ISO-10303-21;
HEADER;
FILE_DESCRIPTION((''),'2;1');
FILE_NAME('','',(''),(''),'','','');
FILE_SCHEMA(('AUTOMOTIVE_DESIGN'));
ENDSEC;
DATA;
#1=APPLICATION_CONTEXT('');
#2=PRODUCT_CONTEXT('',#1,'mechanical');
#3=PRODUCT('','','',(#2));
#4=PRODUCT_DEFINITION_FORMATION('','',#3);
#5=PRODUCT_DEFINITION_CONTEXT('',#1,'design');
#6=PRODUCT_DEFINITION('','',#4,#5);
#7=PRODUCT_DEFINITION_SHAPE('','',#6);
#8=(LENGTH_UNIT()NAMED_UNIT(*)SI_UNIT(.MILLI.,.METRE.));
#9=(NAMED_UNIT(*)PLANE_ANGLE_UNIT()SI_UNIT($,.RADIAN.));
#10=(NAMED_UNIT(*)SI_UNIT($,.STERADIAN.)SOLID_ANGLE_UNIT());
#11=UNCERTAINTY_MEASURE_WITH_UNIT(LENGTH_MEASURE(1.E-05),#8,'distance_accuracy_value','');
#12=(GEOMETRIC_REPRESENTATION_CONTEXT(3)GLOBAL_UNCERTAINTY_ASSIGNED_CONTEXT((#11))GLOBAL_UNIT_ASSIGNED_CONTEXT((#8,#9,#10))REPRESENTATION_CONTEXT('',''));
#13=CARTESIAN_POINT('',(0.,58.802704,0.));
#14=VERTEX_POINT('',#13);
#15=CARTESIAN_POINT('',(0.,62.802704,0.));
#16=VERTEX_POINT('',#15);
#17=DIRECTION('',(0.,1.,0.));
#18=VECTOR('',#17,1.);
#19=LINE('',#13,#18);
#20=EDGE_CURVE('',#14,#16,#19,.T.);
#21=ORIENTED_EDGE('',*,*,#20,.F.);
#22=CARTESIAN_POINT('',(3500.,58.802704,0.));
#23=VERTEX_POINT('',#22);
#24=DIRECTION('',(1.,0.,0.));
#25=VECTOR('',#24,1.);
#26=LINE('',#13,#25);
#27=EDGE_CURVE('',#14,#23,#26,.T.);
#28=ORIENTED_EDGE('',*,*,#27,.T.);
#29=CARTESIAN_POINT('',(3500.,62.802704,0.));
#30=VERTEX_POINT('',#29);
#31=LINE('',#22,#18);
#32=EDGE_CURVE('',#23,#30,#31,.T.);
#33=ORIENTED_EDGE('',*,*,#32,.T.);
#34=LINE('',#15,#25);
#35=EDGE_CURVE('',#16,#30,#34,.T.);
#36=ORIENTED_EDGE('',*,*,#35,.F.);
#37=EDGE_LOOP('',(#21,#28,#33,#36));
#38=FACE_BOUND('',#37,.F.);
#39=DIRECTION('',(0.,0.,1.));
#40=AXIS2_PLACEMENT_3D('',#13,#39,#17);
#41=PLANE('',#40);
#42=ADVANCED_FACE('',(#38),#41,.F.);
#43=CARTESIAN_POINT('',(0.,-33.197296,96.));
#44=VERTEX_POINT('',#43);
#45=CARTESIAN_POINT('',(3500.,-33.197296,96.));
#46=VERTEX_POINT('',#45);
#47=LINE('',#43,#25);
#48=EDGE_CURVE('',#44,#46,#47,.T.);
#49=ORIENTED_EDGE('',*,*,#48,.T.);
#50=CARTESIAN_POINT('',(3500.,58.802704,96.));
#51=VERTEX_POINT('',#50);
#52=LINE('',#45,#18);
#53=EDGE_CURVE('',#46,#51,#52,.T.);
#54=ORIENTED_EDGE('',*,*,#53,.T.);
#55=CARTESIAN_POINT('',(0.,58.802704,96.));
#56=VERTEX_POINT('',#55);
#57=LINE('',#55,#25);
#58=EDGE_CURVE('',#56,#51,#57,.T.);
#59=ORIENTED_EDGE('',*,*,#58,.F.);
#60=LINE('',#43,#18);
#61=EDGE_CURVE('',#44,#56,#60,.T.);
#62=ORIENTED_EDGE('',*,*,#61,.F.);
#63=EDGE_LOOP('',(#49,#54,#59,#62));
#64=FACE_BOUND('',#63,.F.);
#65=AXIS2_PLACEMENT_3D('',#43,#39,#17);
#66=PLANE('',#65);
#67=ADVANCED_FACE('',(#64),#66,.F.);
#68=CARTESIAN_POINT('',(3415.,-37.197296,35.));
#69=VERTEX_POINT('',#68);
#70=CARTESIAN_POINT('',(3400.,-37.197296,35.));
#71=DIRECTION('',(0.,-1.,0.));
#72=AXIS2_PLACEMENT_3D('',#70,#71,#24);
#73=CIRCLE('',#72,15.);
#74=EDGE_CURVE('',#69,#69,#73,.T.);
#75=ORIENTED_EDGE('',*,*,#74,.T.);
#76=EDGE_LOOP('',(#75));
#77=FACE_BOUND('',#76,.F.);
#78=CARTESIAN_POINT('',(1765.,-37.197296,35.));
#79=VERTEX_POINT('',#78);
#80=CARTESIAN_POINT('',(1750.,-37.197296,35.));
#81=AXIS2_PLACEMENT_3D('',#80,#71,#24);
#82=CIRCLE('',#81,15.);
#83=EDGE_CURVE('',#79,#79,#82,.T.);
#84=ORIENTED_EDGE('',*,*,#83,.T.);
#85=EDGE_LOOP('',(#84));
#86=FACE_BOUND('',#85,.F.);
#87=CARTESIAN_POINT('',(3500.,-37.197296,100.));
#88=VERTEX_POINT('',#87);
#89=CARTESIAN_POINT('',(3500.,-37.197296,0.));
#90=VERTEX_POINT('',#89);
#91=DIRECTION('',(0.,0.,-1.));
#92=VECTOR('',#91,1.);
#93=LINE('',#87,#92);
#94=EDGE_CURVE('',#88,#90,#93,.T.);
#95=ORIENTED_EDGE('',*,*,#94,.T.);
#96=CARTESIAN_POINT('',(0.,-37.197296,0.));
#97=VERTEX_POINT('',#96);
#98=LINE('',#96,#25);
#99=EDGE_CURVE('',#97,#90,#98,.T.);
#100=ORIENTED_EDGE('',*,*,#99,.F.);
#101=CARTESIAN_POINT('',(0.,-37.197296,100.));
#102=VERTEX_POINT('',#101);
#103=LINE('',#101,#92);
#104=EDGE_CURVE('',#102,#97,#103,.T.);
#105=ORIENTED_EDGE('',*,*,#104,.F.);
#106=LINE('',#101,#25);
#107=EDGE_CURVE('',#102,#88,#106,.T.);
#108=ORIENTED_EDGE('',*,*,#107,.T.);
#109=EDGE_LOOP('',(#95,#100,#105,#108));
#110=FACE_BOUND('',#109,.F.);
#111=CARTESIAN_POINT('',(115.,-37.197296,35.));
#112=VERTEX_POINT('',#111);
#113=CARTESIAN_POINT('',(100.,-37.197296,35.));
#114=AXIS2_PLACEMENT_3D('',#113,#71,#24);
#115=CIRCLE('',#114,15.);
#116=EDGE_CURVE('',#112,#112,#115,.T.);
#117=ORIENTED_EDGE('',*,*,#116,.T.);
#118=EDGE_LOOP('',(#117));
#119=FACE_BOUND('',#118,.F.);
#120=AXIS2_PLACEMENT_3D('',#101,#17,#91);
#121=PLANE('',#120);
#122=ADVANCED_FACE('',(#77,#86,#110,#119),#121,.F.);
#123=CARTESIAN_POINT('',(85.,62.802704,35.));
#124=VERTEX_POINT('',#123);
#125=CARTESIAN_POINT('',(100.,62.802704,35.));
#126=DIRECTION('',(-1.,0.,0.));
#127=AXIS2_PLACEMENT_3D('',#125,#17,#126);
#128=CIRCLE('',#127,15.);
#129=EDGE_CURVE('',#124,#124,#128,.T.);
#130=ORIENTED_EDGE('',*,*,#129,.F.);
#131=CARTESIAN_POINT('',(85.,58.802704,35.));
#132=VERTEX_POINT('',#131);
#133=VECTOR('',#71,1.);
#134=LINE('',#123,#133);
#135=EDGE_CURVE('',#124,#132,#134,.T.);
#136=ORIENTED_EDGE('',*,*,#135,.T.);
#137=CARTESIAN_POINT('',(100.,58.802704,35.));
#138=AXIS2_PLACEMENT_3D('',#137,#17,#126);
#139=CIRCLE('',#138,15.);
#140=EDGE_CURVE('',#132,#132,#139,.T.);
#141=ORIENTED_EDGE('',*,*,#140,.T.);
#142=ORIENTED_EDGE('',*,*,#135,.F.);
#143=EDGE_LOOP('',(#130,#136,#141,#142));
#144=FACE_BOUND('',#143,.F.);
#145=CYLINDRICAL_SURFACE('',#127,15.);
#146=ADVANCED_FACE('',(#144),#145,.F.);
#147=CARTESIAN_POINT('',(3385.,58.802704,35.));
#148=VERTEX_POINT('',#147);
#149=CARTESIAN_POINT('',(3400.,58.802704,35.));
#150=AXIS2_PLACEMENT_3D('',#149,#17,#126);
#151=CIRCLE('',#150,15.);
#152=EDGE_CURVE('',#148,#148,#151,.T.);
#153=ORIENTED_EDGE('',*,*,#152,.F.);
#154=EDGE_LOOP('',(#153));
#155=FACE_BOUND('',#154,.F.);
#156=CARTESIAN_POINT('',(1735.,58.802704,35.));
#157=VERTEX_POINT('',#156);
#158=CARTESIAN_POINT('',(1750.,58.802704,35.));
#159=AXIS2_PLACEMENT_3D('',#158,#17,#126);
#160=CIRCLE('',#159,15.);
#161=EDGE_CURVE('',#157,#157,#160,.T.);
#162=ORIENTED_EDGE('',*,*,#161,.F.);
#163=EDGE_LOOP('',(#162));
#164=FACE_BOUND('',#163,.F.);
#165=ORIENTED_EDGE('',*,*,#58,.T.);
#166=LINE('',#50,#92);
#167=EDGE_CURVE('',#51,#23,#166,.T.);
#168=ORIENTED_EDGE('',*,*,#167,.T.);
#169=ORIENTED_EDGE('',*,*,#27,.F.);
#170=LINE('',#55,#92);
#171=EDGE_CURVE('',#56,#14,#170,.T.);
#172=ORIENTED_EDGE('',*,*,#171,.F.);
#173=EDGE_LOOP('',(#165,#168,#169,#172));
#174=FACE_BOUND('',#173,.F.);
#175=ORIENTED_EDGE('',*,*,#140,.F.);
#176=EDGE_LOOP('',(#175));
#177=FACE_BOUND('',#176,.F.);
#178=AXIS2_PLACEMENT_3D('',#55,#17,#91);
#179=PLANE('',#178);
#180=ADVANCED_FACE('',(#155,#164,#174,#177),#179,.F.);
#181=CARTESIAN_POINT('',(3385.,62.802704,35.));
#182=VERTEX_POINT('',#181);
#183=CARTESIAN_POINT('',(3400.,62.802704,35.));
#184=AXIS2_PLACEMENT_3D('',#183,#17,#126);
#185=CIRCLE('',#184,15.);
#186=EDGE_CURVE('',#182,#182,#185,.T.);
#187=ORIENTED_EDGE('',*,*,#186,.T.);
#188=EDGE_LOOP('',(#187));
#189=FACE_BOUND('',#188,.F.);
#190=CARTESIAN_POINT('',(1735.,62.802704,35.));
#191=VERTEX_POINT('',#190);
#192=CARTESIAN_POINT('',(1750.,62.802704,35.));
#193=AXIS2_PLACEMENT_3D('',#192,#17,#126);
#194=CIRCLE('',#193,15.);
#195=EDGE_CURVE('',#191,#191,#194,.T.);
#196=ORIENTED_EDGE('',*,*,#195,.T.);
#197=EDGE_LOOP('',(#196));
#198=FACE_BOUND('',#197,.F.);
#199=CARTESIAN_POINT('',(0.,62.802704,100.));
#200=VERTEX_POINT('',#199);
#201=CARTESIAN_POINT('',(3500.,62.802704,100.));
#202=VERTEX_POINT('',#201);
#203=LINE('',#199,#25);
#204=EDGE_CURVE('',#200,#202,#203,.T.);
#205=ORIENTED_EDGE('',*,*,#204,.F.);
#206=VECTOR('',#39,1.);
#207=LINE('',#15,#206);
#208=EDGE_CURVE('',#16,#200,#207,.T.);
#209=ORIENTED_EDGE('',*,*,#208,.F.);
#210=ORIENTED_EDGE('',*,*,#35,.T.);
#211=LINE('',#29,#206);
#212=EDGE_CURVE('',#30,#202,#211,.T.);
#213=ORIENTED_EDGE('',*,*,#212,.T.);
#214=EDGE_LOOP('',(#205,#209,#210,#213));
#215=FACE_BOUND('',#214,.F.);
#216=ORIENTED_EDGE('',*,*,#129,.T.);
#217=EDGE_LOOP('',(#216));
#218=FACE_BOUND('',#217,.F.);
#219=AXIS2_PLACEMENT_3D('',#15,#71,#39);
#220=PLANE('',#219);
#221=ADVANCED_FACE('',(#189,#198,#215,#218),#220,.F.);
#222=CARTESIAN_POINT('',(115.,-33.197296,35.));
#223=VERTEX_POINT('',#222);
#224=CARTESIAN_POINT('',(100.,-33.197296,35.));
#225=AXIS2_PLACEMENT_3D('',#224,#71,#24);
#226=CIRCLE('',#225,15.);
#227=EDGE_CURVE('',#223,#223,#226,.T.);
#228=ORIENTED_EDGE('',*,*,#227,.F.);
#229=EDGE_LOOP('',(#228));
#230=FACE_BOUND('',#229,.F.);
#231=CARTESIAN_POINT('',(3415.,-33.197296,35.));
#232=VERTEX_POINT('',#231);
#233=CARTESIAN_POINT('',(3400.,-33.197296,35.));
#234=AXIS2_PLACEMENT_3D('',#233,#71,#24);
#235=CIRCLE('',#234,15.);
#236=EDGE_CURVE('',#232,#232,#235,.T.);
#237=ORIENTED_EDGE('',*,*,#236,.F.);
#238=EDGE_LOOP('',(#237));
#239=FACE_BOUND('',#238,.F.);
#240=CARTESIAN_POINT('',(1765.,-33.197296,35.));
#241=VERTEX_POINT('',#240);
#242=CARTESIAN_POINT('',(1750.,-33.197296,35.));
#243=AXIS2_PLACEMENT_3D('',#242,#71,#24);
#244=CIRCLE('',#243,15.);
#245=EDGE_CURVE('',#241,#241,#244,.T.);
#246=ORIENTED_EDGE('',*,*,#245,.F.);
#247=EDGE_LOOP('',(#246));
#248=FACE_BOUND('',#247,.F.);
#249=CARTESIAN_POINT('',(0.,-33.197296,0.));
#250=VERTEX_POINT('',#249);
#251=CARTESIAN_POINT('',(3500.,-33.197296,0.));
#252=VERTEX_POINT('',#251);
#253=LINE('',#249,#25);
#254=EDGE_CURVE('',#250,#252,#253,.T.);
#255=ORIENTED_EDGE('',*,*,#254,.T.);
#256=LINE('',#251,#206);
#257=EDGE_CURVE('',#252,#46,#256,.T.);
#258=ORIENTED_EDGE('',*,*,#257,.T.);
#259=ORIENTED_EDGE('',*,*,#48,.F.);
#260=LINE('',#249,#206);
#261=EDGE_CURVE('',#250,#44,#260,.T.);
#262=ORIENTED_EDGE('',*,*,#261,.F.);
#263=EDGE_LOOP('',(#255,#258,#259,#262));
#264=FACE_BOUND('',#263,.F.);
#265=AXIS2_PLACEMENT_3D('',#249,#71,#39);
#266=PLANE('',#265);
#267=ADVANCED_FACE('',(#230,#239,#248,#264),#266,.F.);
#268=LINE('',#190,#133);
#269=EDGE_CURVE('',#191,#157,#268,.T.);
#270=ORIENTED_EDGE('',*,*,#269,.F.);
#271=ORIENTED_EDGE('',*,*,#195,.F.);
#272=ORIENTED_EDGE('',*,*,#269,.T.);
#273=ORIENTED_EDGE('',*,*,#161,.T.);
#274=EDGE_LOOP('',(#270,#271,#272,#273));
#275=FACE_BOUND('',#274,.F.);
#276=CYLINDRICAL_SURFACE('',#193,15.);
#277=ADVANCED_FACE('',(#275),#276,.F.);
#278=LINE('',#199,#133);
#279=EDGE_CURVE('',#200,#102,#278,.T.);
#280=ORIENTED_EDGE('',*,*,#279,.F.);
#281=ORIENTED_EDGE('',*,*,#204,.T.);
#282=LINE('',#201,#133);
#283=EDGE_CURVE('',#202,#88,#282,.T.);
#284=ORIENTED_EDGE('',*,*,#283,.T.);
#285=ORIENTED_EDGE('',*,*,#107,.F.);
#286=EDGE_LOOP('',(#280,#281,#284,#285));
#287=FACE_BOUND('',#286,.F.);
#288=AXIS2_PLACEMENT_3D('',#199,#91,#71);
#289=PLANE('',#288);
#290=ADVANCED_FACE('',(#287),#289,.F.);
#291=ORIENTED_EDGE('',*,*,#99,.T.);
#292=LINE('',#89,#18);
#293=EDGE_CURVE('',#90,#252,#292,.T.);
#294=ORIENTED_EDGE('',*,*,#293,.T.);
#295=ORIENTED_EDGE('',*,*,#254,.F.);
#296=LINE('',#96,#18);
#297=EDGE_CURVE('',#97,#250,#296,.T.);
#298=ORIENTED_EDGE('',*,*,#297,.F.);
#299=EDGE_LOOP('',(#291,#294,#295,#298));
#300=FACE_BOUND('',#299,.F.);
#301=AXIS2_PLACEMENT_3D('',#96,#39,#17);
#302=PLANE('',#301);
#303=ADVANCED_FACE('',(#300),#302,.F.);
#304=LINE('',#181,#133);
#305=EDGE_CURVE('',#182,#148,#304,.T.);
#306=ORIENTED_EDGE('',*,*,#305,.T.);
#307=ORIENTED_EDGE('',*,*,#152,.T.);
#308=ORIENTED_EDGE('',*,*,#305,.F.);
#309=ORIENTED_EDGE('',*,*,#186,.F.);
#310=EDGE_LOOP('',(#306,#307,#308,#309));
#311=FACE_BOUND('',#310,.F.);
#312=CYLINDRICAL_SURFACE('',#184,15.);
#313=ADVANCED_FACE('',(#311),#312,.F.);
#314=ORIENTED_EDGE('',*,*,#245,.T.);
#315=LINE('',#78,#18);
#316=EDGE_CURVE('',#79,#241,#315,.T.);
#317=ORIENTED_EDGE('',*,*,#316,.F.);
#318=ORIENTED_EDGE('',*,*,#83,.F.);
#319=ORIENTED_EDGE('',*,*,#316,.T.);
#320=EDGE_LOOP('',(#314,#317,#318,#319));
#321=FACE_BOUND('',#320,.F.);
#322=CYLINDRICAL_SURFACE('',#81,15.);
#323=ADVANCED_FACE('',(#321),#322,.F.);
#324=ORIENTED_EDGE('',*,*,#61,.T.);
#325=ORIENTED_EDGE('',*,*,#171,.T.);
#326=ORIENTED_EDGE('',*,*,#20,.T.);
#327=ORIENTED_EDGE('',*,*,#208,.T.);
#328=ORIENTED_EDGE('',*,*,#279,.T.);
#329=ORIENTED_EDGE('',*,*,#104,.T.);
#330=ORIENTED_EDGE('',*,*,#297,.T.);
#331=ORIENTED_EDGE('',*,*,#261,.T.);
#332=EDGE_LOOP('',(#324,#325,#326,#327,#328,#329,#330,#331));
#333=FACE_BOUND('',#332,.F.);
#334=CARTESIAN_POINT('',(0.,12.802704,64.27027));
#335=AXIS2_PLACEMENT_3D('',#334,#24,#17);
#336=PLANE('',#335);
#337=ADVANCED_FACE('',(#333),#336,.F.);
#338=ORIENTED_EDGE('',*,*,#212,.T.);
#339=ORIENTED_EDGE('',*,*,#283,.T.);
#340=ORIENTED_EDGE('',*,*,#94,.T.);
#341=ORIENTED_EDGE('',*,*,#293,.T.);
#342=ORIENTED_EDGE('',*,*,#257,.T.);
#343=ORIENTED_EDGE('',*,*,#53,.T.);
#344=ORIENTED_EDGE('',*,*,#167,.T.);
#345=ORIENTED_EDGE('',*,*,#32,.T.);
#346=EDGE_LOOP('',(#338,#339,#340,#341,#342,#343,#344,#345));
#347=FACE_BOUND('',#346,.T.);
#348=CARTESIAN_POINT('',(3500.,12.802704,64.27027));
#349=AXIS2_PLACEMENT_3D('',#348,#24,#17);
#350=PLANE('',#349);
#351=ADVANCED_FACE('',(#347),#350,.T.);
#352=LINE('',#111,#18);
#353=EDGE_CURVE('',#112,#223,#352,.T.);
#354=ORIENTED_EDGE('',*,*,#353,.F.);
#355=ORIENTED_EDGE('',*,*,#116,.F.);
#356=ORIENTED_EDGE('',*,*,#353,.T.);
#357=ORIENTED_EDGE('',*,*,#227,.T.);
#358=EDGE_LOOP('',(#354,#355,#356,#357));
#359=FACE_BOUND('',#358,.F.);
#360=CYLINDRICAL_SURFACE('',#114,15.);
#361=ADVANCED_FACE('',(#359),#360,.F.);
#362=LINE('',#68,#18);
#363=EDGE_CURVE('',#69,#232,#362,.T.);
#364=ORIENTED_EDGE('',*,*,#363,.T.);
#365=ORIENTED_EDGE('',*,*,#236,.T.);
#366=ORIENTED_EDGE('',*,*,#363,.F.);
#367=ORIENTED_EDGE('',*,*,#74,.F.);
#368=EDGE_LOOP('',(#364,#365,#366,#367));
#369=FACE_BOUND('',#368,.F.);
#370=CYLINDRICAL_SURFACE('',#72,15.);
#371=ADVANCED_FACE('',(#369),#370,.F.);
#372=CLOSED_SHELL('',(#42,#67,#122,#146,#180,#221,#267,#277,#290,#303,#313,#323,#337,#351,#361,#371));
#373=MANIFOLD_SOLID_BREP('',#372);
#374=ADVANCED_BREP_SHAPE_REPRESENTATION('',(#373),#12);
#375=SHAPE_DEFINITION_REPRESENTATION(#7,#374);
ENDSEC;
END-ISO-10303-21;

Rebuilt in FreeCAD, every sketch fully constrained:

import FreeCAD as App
import Part
import Sketcher
Q = App.Units.Quantity


def add_polygon(sketch, points):
    """Adds a closed chain of lines whose ends are joined by coincident constraints."""
    first, n = sketch.GeometryCount, len(points)
    for a, b in zip(points, points[1:] + points[:1]):
        sketch.addGeometry(Part.LineSegment(App.Vector(*a, 0), App.Vector(*b, 0)), False)
    for i in range(n):
        sketch.addConstraint(Sketcher.Constraint("Coincident", first + i, 2, first + (i + 1) % n, 1))

doc = App.newDocument("Part")
body = doc.addObject("PartDesign::Body", "Body")

# Sketch on YZ plane
sketch1 = body.newObject("Sketcher::SketchObject", "Sketch")
sketch1.AttachmentSupport = (doc.getObject("YZ_Plane"), [""])
sketch1.MapMode = "FlatFace"
add_polygon(sketch1, [(-37.2, 100), (-37.2, 0), (-33.2, 0), (-33.2, 96), (58.8, 96), (58.8, 0), (62.8, 0), (62.8, 100)])  # lines 0-7
sketch1.addConstraint(Sketcher.Constraint("Vertical", 0))
sketch1.addConstraint(Sketcher.Constraint("Horizontal", 1))
sketch1.addConstraint(Sketcher.Constraint("Vertical", 2))
sketch1.addConstraint(Sketcher.Constraint("Horizontal", 3))
sketch1.addConstraint(Sketcher.Constraint("Vertical", 4))
sketch1.addConstraint(Sketcher.Constraint("Horizontal", 5))
sketch1.addConstraint(Sketcher.Constraint("Vertical", 6))
sketch1.addConstraint(Sketcher.Constraint("Horizontal", 7))
sketch1.addConstraint(Sketcher.Constraint("PointOnObject", 0, 2, -1))
sketch1.addConstraint(Sketcher.Constraint("PointOnObject", 4, 2, -1))
sketch1.addConstraint(Sketcher.Constraint("Equal", 1, 5))
sketch1.addConstraint(Sketcher.Constraint("Equal", 7, 0))
sketch1.addConstraint(Sketcher.Constraint("DistanceX", 1, 1, 1, 2, Q("4 mm")))
sketch1.addConstraint(Sketcher.Constraint("DistanceX", 3, 1, 3, 2, Q("92 mm")))
sketch1.addConstraint(Sketcher.Constraint("DistanceY", 2, 1, 2, 2, Q("96 mm")))
sketch1.addConstraint(Sketcher.Constraint("DistanceX", 0, 2, -1, 1, Q("37.197296 mm")))
pad1 = body.newObject("PartDesign::Pad", "Pad")
pad1.Profile = sketch1
pad1.Length = 3500

# Sketch on XZ plane
sketch2 = body.newObject("Sketcher::SketchObject", "Sketch001")
sketch2.AttachmentSupport = (doc.getObject("XZ_Plane"), [""])
sketch2.MapMode = "FlatFace"
sketch2.AttachmentOffset = App.Placement(App.Vector(0, 0, -62.802704), App.Rotation())
sketch2.addGeometry(Part.Circle(App.Vector(3400, 35, 0), App.Vector(0, 0, 1), 15), False)
sketch2.addGeometry(Part.Circle(App.Vector(1750, 35, 0), App.Vector(0, 0, 1), 15), False)
sketch2.addGeometry(Part.Circle(App.Vector(100, 35, 0), App.Vector(0, 0, 1), 15), False)
sketch2.addConstraint(Sketcher.Constraint("Equal", 0, 1))
sketch2.addConstraint(Sketcher.Constraint("Equal", 1, 2))
sketch2.addConstraint(Sketcher.Constraint("Horizontal", 0, 3, 1, 3))
sketch2.addConstraint(Sketcher.Constraint("Horizontal", 1, 3, 2, 3))
sketch2.addConstraint(Sketcher.Constraint("Diameter", 0, Q("30 mm")))
sketch2.addConstraint(Sketcher.Constraint("DistanceX", -1, 1, 0, 3, Q("3400 mm")))
sketch2.addConstraint(Sketcher.Constraint("DistanceY", -1, 1, 0, 3, Q("35 mm")))
sketch2.addConstraint(Sketcher.Constraint("DistanceX", -1, 1, 1, 3, Q("1750 mm")))
sketch2.addConstraint(Sketcher.Constraint("DistanceX", -1, 1, 2, 3, Q("100 mm")))
pocket1 = body.newObject("PartDesign::Pocket", "Pocket")
pocket1.Profile = sketch2
pocket1.Length = 4
pocket1.Reversed = True

# Sketch on XZ plane
sketch3 = body.newObject("Sketcher::SketchObject", "Sketch002")
sketch3.AttachmentSupport = (doc.getObject("XZ_Plane"), [""])
sketch3.MapMode = "FlatFace"
sketch3.AttachmentOffset = App.Placement(App.Vector(0, 0, 37.197296), App.Rotation())
sketch3.addGeometry(Part.Circle(App.Vector(100, 35, 0), App.Vector(0, 0, 1), 15), False)
sketch3.addGeometry(Part.Circle(App.Vector(1750, 35, 0), App.Vector(0, 0, 1), 15), False)
sketch3.addGeometry(Part.Circle(App.Vector(3400, 35, 0), App.Vector(0, 0, 1), 15), False)
sketch3.addConstraint(Sketcher.Constraint("Equal", 0, 1))
sketch3.addConstraint(Sketcher.Constraint("Equal", 1, 2))
sketch3.addConstraint(Sketcher.Constraint("Horizontal", 0, 3, 1, 3))
sketch3.addConstraint(Sketcher.Constraint("Horizontal", 1, 3, 2, 3))
sketch3.addConstraint(Sketcher.Constraint("Diameter", 0, Q("30 mm")))
sketch3.addConstraint(Sketcher.Constraint("DistanceX", -1, 1, 0, 3, Q("100 mm")))
sketch3.addConstraint(Sketcher.Constraint("DistanceY", -1, 1, 0, 3, Q("35 mm")))
sketch3.addConstraint(Sketcher.Constraint("DistanceX", -1, 1, 1, 3, Q("1750 mm")))
sketch3.addConstraint(Sketcher.Constraint("DistanceX", -1, 1, 2, 3, Q("3400 mm")))
pocket2 = body.newObject("PartDesign::Pocket", "Pocket001")
pocket2.Profile = sketch3
pocket2.Length = 5

doc.recompute()
